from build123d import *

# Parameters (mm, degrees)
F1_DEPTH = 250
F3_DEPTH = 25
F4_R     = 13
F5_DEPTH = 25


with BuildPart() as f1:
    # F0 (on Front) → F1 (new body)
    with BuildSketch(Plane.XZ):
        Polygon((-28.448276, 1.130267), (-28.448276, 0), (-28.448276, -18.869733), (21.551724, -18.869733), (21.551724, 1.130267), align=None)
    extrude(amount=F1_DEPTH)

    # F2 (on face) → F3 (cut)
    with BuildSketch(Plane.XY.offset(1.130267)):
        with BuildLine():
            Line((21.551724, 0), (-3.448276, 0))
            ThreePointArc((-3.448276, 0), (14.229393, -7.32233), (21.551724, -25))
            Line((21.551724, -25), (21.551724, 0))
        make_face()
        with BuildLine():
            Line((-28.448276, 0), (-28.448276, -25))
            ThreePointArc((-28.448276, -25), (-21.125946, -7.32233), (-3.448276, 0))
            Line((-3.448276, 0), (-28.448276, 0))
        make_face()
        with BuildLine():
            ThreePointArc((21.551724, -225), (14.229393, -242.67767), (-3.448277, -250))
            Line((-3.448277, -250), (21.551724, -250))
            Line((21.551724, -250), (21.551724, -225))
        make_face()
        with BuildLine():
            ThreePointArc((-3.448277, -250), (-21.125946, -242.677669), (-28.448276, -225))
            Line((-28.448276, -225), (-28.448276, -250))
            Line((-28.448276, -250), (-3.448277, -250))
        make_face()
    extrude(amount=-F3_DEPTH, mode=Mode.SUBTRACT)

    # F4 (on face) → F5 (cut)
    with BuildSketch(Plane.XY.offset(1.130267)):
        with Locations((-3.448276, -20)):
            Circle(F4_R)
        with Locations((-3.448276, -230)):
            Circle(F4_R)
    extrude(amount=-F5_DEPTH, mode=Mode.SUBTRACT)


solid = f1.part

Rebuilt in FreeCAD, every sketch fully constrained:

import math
import FreeCAD as App
import Part
import Sketcher
from FreeCAD import Vector


def add_polygon(sketch, points):
    """Adds a closed chain of lines whose ends are joined by coincident constraints."""
    first, n = sketch.GeometryCount, len(points)
    for a, b in zip(points, points[1:] + points[:1]):
        sketch.addGeometry(Part.LineSegment(App.Vector(*a, 0), App.Vector(*b, 0)), False)
    for i in range(n):
        sketch.addConstraint(Sketcher.Constraint("Coincident", first + i, 2, first + (i + 1) % n, 1))

doc = App.newDocument("Part")
body = doc.addObject("PartDesign::Body", "Body")

# Sketch on XZ plane
sketch1 = doc.addObject("Sketcher::SketchObject", "Sketch")
body.addObject(sketch1)
sketch1.AttachmentSupport = (doc.XZ_Plane, [""])
sketch1.MapMode = "FlatFace"
add_polygon(sketch1, [(-28.448276, 1.130267), (-28.448276, -18.869733), (21.551724, -18.869733), (21.551724, 1.130267)])  # lines 0-3
sketch1.addConstraint(Sketcher.Constraint("Vertical", 0))
sketch1.addConstraint(Sketcher.Constraint("Horizontal", 1))
sketch1.addConstraint(Sketcher.Constraint("Vertical", 2))
sketch1.addConstraint(Sketcher.Constraint("Horizontal", 3))
sketch1.addConstraint(Sketcher.Constraint("DistanceX", 1, 1, 1, 2, 50.0))
sketch1.addConstraint(Sketcher.Constraint("DistanceY", 0, 2, 0, 1, 20.0))
sketch1.addConstraint(Sketcher.Constraint("DistanceX", 0, 2, -1, 1, 28.448276))
sketch1.addConstraint(Sketcher.Constraint("DistanceY", 0, 2, -1, 1, 18.869733))
pad1 = doc.addObject("PartDesign::Pad", "Pad")
body.addObject(pad1)
pad1.Profile = sketch1
pad1.Length = 250

# Sketch on XY plane
sketch2 = doc.addObject("Sketcher::SketchObject", "Sketch001")
body.addObject(sketch2)
sketch2.AttachmentSupport = (doc.XY_Plane, [""])
sketch2.MapMode = "FlatFace"
sketch2.AttachmentOffset = App.Placement(Vector(0, 0, 1.130267), App.Rotation())
sketch2.addGeometry(Part.LineSegment(Vector(21.551724, 0, 0), Vector(-3.448276, 0, 0)), False)
sketch2.addGeometry(Part.ArcOfCircle(Part.Circle(Vector(-3.448276, -25, 0), Vector(0, 0, 1), 25), math.radians(0), math.radians(90)), False)
sketch2.addGeometry(Part.LineSegment(Vector(21.551724, -25, 0), Vector(21.551724, 0, 0)), False)
sketch2.addGeometry(Part.LineSegment(Vector(-28.448276, 0, 0), Vector(-28.448276, -25, 0)), False)
sketch2.addGeometry(Part.ArcOfCircle(Part.Circle(Vector(-3.448278, -24.999998, 0), Vector(0, 0, 1), 24.999998), math.radians(89.999996), math.radians(180.000004)), False)
sketch2.addGeometry(Part.LineSegment(Vector(-3.448276, 0, 0), Vector(-28.448276, 0, 0)), False)
sketch2.addGeometry(Part.ArcOfCircle(Part.Circle(Vector(-3.448276, -225, 0), Vector(0, 0, 1), 25), math.radians(-90.000002), math.radians(0)), False)
sketch2.addGeometry(Part.LineSegment(Vector(-3.448277, -250, 0), Vector(21.551724, -250, 0)), False)
sketch2.addGeometry(Part.LineSegment(Vector(21.551724, -250, 0), Vector(21.551724, -225, 0)), False)
sketch2.addGeometry(Part.ArcOfCircle(Part.Circle(Vector(-3.448276, -225, 0), Vector(0, 0, 1), 25), math.radians(-180), math.radians(-90.000003)), False)
sketch2.addGeometry(Part.LineSegment(Vector(-28.448276, -225, 0), Vector(-28.448276, -250, 0)), False)
sketch2.addGeometry(Part.LineSegment(Vector(-28.448276, -250, 0), Vector(-3.448277, -250, 0)), False)
sketch2.addConstraint(Sketcher.Constraint("Tangent", 0, 2, 1, 2))
sketch2.addConstraint(Sketcher.Constraint("Tangent", 1, 1, 2, 1))
sketch2.addConstraint(Sketcher.Constraint("Coincident", 2, 2, 0, 1))
sketch2.addConstraint(Sketcher.Constraint("Tangent", 3, 2, 4, 2))
sketch2.addConstraint(Sketcher.Constraint("Tangent", 4, 1, 5, 1))
sketch2.addConstraint(Sketcher.Constraint("Coincident", 5, 2, 3, 1))
sketch2.addConstraint(Sketcher.Constraint("Tangent", 6, 1, 7, 1))
sketch2.addConstraint(Sketcher.Constraint("Coincident", 7, 2, 8, 1))
sketch2.addConstraint(Sketcher.Constraint("Tangent", 8, 2, 6, 2))
sketch2.addConstraint(Sketcher.Constraint("Tangent", 9, 1, 10, 1))
sketch2.addConstraint(Sketcher.Constraint("Coincident", 10, 2, 11, 1))
sketch2.addConstraint(Sketcher.Constraint("Tangent", 11, 2, 9, 2))
sketch2.addConstraint(Sketcher.Constraint("Horizontal", 0))
sketch2.addConstraint(Sketcher.Constraint("Vertical", 2))
sketch2.addConstraint(Sketcher.Constraint("Vertical", 3))
sketch2.addConstraint(Sketcher.Constraint("Horizontal", 5))
sketch2.addConstraint(Sketcher.Constraint("Horizontal", 7))
sketch2.addConstraint(Sketcher.Constraint("Vertical", 8))
sketch2.addConstraint(Sketcher.Constraint("Vertical", 10))
sketch2.addConstraint(Sketcher.Constraint("Horizontal", 11))
sketch2.addConstraint(Sketcher.Constraint("Coincident", 4, 3, 1, 3))
sketch2.addConstraint(Sketcher.Constraint("Coincident", 9, 3, 6, 3))
sketch2.addConstraint(Sketcher.Constraint("Equal", 1, 4))
sketch2.addConstraint(Sketcher.Constraint("Equal", 4, 6))
sketch2.addConstraint(Sketcher.Constraint("Equal", 6, 9))
sketch2.addConstraint(Sketcher.Constraint("PointOnObject", 0, 2, -1))
sketch2.addConstraint(Sketcher.Constraint("Vertical", 4, 3, 6, 3))
sketch2.addConstraint(Sketcher.Constraint("Radius", 1, 25.0))
sketch2.addConstraint(Sketcher.Constraint("DistanceY", 6, 3, -1, 1, 225.0))
sketch2.addConstraint(Sketcher.Constraint("DistanceX", 1, 3, -1, 1, 3.448276))
pocket1 = doc.addObject("PartDesign::Pocket", "Pocket")
body.addObject(pocket1)
pocket1.Profile = sketch2
pocket1.Length = 25

# Sketch on XY plane
sketch3 = doc.addObject("Sketcher::SketchObject", "Sketch002")
body.addObject(sketch3)
sketch3.AttachmentSupport = (doc.XY_Plane, [""])
sketch3.MapMode = "FlatFace"
sketch3.AttachmentOffset = App.Placement(Vector(0, 0, 1.130267), App.Rotation())
sketch3.addGeometry(Part.Circle(Vector(-3.448276, -20, 0), Vector(0, 0, 1), 13), False)
sketch3.addGeometry(Part.Circle(Vector(-3.448276, -230, 0), Vector(0, 0, 1), 13), False)
sketch3.addConstraint(Sketcher.Constraint("Equal", 0, 1))
sketch3.addConstraint(Sketcher.Constraint("Vertical", 0, 3, 1, 3))
sketch3.addConstraint(Sketcher.Constraint("Diameter", 0, 26.0))
sketch3.addConstraint(Sketcher.Constraint("DistanceY", 0, 3, -1, 1, 20.0))
sketch3.addConstraint(Sketcher.Constraint("DistanceY", 1, 3, -1, 1, 230.0))
sketch3.addConstraint(Sketcher.Constraint("DistanceX", 0, 3, -1, 1, 3.448276))
pocket2 = doc.addObject("PartDesign::Pocket", "Pocket001")
body.addObject(pocket2)
pocket2.Profile = sketch3
pocket2.Length = 25

doc.recompute()
